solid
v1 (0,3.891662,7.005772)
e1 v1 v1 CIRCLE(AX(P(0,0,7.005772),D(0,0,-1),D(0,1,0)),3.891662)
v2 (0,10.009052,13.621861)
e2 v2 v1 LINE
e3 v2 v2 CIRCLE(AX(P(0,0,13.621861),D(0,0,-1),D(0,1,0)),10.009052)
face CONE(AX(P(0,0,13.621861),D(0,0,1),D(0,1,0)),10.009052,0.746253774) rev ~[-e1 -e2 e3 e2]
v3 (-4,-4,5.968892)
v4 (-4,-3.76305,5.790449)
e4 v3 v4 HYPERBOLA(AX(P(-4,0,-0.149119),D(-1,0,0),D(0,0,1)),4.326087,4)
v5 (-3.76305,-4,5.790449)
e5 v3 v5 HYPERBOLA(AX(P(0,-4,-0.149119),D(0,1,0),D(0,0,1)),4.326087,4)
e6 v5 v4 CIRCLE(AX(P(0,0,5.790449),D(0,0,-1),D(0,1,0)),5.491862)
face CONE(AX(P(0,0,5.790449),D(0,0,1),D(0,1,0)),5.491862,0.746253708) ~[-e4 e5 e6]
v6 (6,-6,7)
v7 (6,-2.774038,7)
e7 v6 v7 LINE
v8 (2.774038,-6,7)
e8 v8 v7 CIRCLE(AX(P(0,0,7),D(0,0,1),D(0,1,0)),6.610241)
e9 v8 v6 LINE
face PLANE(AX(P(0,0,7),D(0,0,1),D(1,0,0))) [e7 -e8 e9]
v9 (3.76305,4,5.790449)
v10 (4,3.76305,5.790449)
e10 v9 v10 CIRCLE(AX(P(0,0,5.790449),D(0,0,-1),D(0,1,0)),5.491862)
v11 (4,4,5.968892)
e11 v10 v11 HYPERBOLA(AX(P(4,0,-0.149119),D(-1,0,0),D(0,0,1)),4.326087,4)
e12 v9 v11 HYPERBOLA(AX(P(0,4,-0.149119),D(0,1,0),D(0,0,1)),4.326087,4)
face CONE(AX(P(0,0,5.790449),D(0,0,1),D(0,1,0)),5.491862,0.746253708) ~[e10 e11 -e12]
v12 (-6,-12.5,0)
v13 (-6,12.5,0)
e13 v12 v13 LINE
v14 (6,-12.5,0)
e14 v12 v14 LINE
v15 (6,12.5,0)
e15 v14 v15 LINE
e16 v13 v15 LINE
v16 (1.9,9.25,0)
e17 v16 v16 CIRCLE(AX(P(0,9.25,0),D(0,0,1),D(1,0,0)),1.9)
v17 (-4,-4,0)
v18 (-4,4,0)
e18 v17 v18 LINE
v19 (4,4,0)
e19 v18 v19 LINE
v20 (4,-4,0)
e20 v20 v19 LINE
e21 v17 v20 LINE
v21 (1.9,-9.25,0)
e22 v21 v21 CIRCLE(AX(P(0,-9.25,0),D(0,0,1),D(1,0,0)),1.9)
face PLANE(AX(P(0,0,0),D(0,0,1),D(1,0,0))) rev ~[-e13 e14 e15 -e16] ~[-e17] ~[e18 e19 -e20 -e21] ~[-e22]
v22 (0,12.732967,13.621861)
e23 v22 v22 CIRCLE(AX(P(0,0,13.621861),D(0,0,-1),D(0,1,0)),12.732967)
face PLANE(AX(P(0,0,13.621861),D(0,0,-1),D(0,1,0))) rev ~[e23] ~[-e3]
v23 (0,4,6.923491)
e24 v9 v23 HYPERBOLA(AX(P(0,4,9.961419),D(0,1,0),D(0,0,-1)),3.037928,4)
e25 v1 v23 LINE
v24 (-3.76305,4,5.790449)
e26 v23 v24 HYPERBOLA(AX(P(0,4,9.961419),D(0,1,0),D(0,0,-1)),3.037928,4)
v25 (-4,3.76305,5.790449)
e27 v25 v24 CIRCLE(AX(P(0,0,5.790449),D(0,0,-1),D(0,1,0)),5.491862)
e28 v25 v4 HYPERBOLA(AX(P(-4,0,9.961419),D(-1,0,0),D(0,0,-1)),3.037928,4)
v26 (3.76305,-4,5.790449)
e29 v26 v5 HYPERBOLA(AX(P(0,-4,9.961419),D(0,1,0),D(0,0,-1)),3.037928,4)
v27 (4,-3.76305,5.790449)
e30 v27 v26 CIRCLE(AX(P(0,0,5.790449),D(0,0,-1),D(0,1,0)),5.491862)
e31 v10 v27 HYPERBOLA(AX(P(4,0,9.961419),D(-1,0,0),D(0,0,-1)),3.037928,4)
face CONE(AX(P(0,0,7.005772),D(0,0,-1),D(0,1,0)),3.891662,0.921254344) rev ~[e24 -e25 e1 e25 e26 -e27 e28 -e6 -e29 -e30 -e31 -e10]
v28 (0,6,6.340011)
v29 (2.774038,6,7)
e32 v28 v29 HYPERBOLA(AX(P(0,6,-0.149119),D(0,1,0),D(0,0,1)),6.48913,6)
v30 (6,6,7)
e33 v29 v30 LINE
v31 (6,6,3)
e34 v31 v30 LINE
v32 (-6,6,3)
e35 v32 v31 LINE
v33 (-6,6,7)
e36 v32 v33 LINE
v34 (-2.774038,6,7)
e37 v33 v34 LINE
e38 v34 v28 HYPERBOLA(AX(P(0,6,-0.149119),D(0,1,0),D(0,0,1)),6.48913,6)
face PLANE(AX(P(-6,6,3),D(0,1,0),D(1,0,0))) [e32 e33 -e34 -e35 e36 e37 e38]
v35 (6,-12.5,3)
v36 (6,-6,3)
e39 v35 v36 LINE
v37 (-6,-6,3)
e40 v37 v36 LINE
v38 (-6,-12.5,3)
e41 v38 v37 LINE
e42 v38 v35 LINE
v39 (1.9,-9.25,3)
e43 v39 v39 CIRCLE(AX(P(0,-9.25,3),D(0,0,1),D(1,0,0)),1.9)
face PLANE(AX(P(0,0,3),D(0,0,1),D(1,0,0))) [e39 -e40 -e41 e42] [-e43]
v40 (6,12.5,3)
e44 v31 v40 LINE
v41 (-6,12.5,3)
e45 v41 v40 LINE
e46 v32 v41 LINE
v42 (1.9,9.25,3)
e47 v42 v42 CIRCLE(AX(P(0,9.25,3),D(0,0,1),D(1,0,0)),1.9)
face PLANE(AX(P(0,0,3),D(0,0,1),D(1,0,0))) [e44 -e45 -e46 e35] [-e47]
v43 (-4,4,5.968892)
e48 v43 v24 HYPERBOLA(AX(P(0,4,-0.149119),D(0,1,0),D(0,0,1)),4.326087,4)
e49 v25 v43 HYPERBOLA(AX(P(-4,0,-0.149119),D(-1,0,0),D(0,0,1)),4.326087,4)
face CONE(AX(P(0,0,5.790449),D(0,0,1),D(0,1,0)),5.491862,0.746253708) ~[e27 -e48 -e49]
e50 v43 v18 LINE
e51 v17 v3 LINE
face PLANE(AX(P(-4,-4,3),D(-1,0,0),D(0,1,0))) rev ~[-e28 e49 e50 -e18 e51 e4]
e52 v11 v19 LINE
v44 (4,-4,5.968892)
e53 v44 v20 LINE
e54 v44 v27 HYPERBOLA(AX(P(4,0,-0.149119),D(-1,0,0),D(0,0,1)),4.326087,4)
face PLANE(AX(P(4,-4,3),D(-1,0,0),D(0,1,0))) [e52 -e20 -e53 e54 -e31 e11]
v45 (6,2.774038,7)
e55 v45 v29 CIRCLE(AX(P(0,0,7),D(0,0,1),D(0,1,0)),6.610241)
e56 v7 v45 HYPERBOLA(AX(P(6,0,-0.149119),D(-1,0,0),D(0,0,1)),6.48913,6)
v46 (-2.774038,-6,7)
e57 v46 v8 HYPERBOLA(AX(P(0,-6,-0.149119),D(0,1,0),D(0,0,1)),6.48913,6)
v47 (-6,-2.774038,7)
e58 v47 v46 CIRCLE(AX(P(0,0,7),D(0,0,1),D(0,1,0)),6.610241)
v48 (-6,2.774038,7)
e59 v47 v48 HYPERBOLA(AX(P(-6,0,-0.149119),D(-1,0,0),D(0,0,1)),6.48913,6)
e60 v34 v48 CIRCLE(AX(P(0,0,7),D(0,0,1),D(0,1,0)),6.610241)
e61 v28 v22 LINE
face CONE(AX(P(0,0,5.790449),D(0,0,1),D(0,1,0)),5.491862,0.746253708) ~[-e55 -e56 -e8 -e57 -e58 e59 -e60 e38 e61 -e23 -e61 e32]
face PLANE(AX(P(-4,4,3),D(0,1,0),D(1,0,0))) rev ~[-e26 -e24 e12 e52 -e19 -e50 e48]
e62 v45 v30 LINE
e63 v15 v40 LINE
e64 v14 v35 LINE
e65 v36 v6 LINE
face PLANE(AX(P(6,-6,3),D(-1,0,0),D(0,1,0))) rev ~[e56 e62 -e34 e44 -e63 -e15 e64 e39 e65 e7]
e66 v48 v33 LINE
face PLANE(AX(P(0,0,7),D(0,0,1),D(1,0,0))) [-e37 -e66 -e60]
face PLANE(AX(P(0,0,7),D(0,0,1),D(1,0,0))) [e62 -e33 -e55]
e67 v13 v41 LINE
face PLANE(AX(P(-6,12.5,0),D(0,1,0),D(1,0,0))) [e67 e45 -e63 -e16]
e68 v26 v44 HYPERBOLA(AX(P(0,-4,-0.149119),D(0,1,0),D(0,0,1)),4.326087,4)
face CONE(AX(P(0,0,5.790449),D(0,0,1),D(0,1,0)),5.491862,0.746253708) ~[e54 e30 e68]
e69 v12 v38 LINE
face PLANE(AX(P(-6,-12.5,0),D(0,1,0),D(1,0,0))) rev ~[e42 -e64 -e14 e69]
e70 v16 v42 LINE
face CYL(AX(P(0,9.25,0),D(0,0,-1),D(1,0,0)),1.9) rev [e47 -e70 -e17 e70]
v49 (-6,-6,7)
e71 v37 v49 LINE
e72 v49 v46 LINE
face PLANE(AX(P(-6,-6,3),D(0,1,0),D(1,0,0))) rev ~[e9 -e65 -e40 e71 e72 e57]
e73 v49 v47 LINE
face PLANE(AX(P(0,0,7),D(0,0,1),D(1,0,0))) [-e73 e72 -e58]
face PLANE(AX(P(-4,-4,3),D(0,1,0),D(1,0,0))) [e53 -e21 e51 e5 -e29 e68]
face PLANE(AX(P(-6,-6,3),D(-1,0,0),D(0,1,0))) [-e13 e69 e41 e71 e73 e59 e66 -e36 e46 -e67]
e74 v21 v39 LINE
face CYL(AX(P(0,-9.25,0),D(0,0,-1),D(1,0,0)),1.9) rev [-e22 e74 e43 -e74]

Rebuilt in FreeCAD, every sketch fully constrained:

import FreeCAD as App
import Part
import Sketcher

V = App.Vector
Q = App.Units.Quantity

doc = App.newDocument("Part")
params = doc.addObject("Spreadsheet::Sheet", "Params")
for row, (alias, value) in enumerate([
    ("sketch1_diameter", "3.8 mm"),
    ("sketch1_width", "12 mm"),
    ("sketch1_width2", "8 mm"),
    ("sketch1_height", "25 mm"),
    ("pad1_length", "3 mm"),
    ("sketch2_width", "12 mm"),
    ("sketch2_width2", "8 mm"),
    ("pad2_length", "4 mm"),
    ("revolution_angle", "360 deg"),
], start=1):
    params.set(f"A{row}", alias)
    params.set(f"B{row}", "=" + value)
    params.setAlias(f"B{row}", alias)

body = doc.addObject("PartDesign::Body", "Body")

# Sketch on XY plane
sketch1 = body.newObject("Sketcher::SketchObject", "Sketch")
sketch1.AttachmentSupport = (doc.getObject("XY_Plane"), [""])
sketch1.MapMode = "FlatFace"
sketch1.addGeometry(Part.LineSegment(V(-6, 12.5, 0), V(-6, -12.5, 0)), False)
sketch1.addGeometry(Part.LineSegment(V(-6, -12.5, 0), V(6, -12.5, 0)), False)
sketch1.addGeometry(Part.LineSegment(V(6, -12.5, 0), V(6, 12.5, 0)), False)
sketch1.addGeometry(Part.LineSegment(V(6, 12.5, 0), V(-6, 12.5, 0)), False)
sketch1.addGeometry(Part.Circle(V(0, -9.2, 0), V(0, 0, 1), 1.9), False)
sketch1.addGeometry(Part.LineSegment(V(4, -4, 0), V(-4, -4, 0)), False)
sketch1.addGeometry(Part.LineSegment(V(-4, -4, 0), V(-4, 4, 0)), False)
sketch1.addGeometry(Part.LineSegment(V(-4, 4, 0), V(4, 4, 0)), False)
sketch1.addGeometry(Part.LineSegment(V(4, 4, 0), V(4, -4, 0)), False)
sketch1.addGeometry(Part.Circle(V(0, 9.2, 0), V(0, 0, 1), 1.9), False)
sketch1.addConstraint(Sketcher.Constraint("Coincident", 0, 2, 1, 1))
sketch1.addConstraint(Sketcher.Constraint("Coincident", 1, 2, 2, 1))
sketch1.addConstraint(Sketcher.Constraint("Coincident", 2, 2, 3, 1))
sketch1.addConstraint(Sketcher.Constraint("Coincident", 3, 2, 0, 1))
sketch1.addConstraint(Sketcher.Constraint("Coincident", 5, 2, 6, 1))
sketch1.addConstraint(Sketcher.Constraint("Coincident", 6, 2, 7, 1))
sketch1.addConstraint(Sketcher.Constraint("Coincident", 7, 2, 8, 1))
sketch1.addConstraint(Sketcher.Constraint("Coincident", 8, 2, 5, 1))
sketch1.addConstraint(Sketcher.Constraint("Vertical", 0))
sketch1.addConstraint(Sketcher.Constraint("Horizontal", 1))
sketch1.addConstraint(Sketcher.Constraint("Vertical", 2))
sketch1.addConstraint(Sketcher.Constraint("Horizontal", 3))
sketch1.addConstraint(Sketcher.Constraint("Horizontal", 5))
sketch1.addConstraint(Sketcher.Constraint("Vertical", 6))
sketch1.addConstraint(Sketcher.Constraint("Horizontal", 7))
sketch1.addConstraint(Sketcher.Constraint("Vertical", 8))
sketch1.addConstraint(Sketcher.Constraint("Equal", 4, 9))
sketch1.addConstraint(Sketcher.Constraint("Symmetric", 4, 3, 9, 3, -1, 1))
sketch1.addConstraint(Sketcher.Constraint("Symmetric", 0, 2, 2, 2, -1, 1))
sketch1.addConstraint(Sketcher.Constraint("Symmetric", 5, 2, 7, 2, -1, 1))
sketch1.addConstraint(Sketcher.Constraint("PointOnObject", 4, 3, -2))
sketch1.addConstraint(Sketcher.Constraint("Equal", 7, 6))
sketch1.addConstraint(Sketcher.Constraint("Diameter", 4, Q("3.8 mm")))
sketch1.addConstraint(Sketcher.Constraint("DistanceX", 1, 1, 1, 2, Q("12 mm")))
sketch1.addConstraint(Sketcher.Constraint("DistanceX", 5, 2, 5, 1, Q("8 mm")))
sketch1.addConstraint(Sketcher.Constraint("DistanceY", 0, 2, 0, 1, Q("25 mm")))
sketch1.addConstraint(Sketcher.Constraint("DistanceY", 4, 3, 9, 3, Q("18.5 mm")))
sketch1.setExpression("Constraints[22]", "Params.sketch1_diameter")
sketch1.setExpression("Constraints[23]", "Params.sketch1_width")
sketch1.setExpression("Constraints[24]", "Params.sketch1_width2")
sketch1.setExpression("Constraints[25]", "Params.sketch1_height")
pad1 = body.newObject("PartDesign::Pad", "Pad")
pad1.Profile = sketch1
pad1.setExpression("Length", "Params.pad1_length")

# Sketch on XY plane
sketch2 = body.newObject("Sketcher::SketchObject", "Sketch001")
sketch2.AttachmentSupport = (doc.getObject("XY_Plane"), [""])
sketch2.MapMode = "FlatFace"
sketch2.AttachmentOffset = App.Placement(V(0, 0, 3), App.Rotation())
sketch2.addGeometry(Part.LineSegment(V(-6, 6, 0), V(-6, -6, 0)), False)
sketch2.addGeometry(Part.LineSegment(V(-6, -6, 0), V(6, -6, 0)), False)
sketch2.addGeometry(Part.LineSegment(V(6, -6, 0), V(6, 6, 0)), False)
sketch2.addGeometry(Part.LineSegment(V(6, 6, 0), V(-6, 6, 0)), False)
sketch2.addGeometry(Part.LineSegment(V(4, -4, 0), V(-4, -4, 0)), False)
sketch2.addGeometry(Part.LineSegment(V(-4, -4, 0), V(-4, 4, 0)), False)
sketch2.addGeometry(Part.LineSegment(V(-4, 4, 0), V(4, 4, 0)), False)
sketch2.addGeometry(Part.LineSegment(V(4, 4, 0), V(4, -4, 0)), False)
sketch2.addConstraint(Sketcher.Constraint("Coincident", 0, 2, 1, 1))
sketch2.addConstraint(Sketcher.Constraint("Coincident", 1, 2, 2, 1))
sketch2.addConstraint(Sketcher.Constraint("Coincident", 2, 2, 3, 1))
sketch2.addConstraint(Sketcher.Constraint("Coincident", 3, 2, 0, 1))
sketch2.addConstraint(Sketcher.Constraint("Coincident", 4, 2, 5, 1))
sketch2.addConstraint(Sketcher.Constraint("Coincident", 5, 2, 6, 1))
sketch2.addConstraint(Sketcher.Constraint("Coincident", 6, 2, 7, 1))
sketch2.addConstraint(Sketcher.Constraint("Coincident", 7, 2, 4, 1))
sketch2.addConstraint(Sketcher.Constraint("Vertical", 0))
sketch2.addConstraint(Sketcher.Constraint("Horizontal", 1))
sketch2.addConstraint(Sketcher.Constraint("Vertical", 2))
sketch2.addConstraint(Sketcher.Constraint("Horizontal", 3))
sketch2.addConstraint(Sketcher.Constraint("Horizontal", 4))
sketch2.addConstraint(Sketcher.Constraint("Vertical", 5))
sketch2.addConstraint(Sketcher.Constraint("Horizontal", 6))
sketch2.addConstraint(Sketcher.Constraint("Vertical", 7))
sketch2.addConstraint(Sketcher.Constraint("Symmetric", 0, 2, 2, 2, -1, 1))
sketch2.addConstraint(Sketcher.Constraint("Symmetric", 4, 2, 6, 2, -1, 1))
sketch2.addConstraint(Sketcher.Constraint("Equal", 3, 0))
sketch2.addConstraint(Sketcher.Constraint("Equal", 6, 5))
sketch2.addConstraint(Sketcher.Constraint("DistanceX", 1, 1, 1, 2, Q("12 mm")))
sketch2.addConstraint(Sketcher.Constraint("DistanceX", 4, 2, 4, 1, Q("8 mm")))
sketch2.setExpression("Constraints[20]", "Params.sketch2_width")
sketch2.setExpression("Constraints[21]", "Params.sketch2_width2")
pad2 = body.newObject("PartDesign::Pad", "Pad001")
pad2.Profile = sketch2
pad2.setExpression("Length", "Params.pad2_length")

# Sketch on YZ plane
sketch3 = body.newObject("Sketcher::SketchObject", "Sketch002")
sketch3.AttachmentSupport = (doc.getObject("YZ_Plane"), [""])
sketch3.MapMode = "FlatFace"
sketch3.addGeometry(Part.LineSegment(V(3.9, 7, 0), V(5.5, 5.8, 0)), False)
sketch3.addGeometry(Part.LineSegment(V(5.5, 5.8, 0), V(12.7, 13.6, 0)), False)
sketch3.addGeometry(Part.LineSegment(V(12.7, 13.6, 0), V(10, 13.6, 0)), False)
sketch3.addGeometry(Part.LineSegment(V(10, 13.6, 0), V(3.9, 7, 0)), False)
sketch3.addConstraint(Sketcher.Constraint("Coincident", 0, 2, 1, 1))
sketch3.addConstraint(Sketcher.Constraint("Coincident", 1, 2, 2, 1))
sketch3.addConstraint(Sketcher.Constraint("Coincident", 2, 2, 3, 1))
sketch3.addConstraint(Sketcher.Constraint("Coincident", 3, 2, 0, 1))
sketch3.addConstraint(Sketcher.Constraint("Horizontal", 2))
sketch3.addConstraint(Sketcher.Constraint("Parallel", 1, 3))
sketch3.addConstraint(Sketcher.Constraint("DistanceX", 3, 2, 0, 2, Q("1.6002 mm")))
sketch3.addConstraint(Sketcher.Constraint("Distance", 0, Q("2.00939 mm")))
sketch3.addConstraint(Sketcher.Constraint("Distance", 1, Q("10.66605 mm")))
sketch3.addConstraint(Sketcher.Constraint("DistanceX", 2, 2, 2, 1, Q("2.723915 mm")))
sketch3.addConstraint(Sketcher.Constraint("DistanceY", -1, 1, 0, 2, Q("5.790449 mm")))
sketch3.addConstraint(Sketcher.Constraint("DistanceX", -1, 1, 0, 2, Q("5.491862 mm")))
revolution = body.newObject("PartDesign::Revolution", "Revolution")
revolution.Profile = sketch3
revolution.ReferenceAxis = (sketch3, ["V_Axis"])
revolution.setExpression("Angle", "Params.revolution_angle")

doc.recompute()
